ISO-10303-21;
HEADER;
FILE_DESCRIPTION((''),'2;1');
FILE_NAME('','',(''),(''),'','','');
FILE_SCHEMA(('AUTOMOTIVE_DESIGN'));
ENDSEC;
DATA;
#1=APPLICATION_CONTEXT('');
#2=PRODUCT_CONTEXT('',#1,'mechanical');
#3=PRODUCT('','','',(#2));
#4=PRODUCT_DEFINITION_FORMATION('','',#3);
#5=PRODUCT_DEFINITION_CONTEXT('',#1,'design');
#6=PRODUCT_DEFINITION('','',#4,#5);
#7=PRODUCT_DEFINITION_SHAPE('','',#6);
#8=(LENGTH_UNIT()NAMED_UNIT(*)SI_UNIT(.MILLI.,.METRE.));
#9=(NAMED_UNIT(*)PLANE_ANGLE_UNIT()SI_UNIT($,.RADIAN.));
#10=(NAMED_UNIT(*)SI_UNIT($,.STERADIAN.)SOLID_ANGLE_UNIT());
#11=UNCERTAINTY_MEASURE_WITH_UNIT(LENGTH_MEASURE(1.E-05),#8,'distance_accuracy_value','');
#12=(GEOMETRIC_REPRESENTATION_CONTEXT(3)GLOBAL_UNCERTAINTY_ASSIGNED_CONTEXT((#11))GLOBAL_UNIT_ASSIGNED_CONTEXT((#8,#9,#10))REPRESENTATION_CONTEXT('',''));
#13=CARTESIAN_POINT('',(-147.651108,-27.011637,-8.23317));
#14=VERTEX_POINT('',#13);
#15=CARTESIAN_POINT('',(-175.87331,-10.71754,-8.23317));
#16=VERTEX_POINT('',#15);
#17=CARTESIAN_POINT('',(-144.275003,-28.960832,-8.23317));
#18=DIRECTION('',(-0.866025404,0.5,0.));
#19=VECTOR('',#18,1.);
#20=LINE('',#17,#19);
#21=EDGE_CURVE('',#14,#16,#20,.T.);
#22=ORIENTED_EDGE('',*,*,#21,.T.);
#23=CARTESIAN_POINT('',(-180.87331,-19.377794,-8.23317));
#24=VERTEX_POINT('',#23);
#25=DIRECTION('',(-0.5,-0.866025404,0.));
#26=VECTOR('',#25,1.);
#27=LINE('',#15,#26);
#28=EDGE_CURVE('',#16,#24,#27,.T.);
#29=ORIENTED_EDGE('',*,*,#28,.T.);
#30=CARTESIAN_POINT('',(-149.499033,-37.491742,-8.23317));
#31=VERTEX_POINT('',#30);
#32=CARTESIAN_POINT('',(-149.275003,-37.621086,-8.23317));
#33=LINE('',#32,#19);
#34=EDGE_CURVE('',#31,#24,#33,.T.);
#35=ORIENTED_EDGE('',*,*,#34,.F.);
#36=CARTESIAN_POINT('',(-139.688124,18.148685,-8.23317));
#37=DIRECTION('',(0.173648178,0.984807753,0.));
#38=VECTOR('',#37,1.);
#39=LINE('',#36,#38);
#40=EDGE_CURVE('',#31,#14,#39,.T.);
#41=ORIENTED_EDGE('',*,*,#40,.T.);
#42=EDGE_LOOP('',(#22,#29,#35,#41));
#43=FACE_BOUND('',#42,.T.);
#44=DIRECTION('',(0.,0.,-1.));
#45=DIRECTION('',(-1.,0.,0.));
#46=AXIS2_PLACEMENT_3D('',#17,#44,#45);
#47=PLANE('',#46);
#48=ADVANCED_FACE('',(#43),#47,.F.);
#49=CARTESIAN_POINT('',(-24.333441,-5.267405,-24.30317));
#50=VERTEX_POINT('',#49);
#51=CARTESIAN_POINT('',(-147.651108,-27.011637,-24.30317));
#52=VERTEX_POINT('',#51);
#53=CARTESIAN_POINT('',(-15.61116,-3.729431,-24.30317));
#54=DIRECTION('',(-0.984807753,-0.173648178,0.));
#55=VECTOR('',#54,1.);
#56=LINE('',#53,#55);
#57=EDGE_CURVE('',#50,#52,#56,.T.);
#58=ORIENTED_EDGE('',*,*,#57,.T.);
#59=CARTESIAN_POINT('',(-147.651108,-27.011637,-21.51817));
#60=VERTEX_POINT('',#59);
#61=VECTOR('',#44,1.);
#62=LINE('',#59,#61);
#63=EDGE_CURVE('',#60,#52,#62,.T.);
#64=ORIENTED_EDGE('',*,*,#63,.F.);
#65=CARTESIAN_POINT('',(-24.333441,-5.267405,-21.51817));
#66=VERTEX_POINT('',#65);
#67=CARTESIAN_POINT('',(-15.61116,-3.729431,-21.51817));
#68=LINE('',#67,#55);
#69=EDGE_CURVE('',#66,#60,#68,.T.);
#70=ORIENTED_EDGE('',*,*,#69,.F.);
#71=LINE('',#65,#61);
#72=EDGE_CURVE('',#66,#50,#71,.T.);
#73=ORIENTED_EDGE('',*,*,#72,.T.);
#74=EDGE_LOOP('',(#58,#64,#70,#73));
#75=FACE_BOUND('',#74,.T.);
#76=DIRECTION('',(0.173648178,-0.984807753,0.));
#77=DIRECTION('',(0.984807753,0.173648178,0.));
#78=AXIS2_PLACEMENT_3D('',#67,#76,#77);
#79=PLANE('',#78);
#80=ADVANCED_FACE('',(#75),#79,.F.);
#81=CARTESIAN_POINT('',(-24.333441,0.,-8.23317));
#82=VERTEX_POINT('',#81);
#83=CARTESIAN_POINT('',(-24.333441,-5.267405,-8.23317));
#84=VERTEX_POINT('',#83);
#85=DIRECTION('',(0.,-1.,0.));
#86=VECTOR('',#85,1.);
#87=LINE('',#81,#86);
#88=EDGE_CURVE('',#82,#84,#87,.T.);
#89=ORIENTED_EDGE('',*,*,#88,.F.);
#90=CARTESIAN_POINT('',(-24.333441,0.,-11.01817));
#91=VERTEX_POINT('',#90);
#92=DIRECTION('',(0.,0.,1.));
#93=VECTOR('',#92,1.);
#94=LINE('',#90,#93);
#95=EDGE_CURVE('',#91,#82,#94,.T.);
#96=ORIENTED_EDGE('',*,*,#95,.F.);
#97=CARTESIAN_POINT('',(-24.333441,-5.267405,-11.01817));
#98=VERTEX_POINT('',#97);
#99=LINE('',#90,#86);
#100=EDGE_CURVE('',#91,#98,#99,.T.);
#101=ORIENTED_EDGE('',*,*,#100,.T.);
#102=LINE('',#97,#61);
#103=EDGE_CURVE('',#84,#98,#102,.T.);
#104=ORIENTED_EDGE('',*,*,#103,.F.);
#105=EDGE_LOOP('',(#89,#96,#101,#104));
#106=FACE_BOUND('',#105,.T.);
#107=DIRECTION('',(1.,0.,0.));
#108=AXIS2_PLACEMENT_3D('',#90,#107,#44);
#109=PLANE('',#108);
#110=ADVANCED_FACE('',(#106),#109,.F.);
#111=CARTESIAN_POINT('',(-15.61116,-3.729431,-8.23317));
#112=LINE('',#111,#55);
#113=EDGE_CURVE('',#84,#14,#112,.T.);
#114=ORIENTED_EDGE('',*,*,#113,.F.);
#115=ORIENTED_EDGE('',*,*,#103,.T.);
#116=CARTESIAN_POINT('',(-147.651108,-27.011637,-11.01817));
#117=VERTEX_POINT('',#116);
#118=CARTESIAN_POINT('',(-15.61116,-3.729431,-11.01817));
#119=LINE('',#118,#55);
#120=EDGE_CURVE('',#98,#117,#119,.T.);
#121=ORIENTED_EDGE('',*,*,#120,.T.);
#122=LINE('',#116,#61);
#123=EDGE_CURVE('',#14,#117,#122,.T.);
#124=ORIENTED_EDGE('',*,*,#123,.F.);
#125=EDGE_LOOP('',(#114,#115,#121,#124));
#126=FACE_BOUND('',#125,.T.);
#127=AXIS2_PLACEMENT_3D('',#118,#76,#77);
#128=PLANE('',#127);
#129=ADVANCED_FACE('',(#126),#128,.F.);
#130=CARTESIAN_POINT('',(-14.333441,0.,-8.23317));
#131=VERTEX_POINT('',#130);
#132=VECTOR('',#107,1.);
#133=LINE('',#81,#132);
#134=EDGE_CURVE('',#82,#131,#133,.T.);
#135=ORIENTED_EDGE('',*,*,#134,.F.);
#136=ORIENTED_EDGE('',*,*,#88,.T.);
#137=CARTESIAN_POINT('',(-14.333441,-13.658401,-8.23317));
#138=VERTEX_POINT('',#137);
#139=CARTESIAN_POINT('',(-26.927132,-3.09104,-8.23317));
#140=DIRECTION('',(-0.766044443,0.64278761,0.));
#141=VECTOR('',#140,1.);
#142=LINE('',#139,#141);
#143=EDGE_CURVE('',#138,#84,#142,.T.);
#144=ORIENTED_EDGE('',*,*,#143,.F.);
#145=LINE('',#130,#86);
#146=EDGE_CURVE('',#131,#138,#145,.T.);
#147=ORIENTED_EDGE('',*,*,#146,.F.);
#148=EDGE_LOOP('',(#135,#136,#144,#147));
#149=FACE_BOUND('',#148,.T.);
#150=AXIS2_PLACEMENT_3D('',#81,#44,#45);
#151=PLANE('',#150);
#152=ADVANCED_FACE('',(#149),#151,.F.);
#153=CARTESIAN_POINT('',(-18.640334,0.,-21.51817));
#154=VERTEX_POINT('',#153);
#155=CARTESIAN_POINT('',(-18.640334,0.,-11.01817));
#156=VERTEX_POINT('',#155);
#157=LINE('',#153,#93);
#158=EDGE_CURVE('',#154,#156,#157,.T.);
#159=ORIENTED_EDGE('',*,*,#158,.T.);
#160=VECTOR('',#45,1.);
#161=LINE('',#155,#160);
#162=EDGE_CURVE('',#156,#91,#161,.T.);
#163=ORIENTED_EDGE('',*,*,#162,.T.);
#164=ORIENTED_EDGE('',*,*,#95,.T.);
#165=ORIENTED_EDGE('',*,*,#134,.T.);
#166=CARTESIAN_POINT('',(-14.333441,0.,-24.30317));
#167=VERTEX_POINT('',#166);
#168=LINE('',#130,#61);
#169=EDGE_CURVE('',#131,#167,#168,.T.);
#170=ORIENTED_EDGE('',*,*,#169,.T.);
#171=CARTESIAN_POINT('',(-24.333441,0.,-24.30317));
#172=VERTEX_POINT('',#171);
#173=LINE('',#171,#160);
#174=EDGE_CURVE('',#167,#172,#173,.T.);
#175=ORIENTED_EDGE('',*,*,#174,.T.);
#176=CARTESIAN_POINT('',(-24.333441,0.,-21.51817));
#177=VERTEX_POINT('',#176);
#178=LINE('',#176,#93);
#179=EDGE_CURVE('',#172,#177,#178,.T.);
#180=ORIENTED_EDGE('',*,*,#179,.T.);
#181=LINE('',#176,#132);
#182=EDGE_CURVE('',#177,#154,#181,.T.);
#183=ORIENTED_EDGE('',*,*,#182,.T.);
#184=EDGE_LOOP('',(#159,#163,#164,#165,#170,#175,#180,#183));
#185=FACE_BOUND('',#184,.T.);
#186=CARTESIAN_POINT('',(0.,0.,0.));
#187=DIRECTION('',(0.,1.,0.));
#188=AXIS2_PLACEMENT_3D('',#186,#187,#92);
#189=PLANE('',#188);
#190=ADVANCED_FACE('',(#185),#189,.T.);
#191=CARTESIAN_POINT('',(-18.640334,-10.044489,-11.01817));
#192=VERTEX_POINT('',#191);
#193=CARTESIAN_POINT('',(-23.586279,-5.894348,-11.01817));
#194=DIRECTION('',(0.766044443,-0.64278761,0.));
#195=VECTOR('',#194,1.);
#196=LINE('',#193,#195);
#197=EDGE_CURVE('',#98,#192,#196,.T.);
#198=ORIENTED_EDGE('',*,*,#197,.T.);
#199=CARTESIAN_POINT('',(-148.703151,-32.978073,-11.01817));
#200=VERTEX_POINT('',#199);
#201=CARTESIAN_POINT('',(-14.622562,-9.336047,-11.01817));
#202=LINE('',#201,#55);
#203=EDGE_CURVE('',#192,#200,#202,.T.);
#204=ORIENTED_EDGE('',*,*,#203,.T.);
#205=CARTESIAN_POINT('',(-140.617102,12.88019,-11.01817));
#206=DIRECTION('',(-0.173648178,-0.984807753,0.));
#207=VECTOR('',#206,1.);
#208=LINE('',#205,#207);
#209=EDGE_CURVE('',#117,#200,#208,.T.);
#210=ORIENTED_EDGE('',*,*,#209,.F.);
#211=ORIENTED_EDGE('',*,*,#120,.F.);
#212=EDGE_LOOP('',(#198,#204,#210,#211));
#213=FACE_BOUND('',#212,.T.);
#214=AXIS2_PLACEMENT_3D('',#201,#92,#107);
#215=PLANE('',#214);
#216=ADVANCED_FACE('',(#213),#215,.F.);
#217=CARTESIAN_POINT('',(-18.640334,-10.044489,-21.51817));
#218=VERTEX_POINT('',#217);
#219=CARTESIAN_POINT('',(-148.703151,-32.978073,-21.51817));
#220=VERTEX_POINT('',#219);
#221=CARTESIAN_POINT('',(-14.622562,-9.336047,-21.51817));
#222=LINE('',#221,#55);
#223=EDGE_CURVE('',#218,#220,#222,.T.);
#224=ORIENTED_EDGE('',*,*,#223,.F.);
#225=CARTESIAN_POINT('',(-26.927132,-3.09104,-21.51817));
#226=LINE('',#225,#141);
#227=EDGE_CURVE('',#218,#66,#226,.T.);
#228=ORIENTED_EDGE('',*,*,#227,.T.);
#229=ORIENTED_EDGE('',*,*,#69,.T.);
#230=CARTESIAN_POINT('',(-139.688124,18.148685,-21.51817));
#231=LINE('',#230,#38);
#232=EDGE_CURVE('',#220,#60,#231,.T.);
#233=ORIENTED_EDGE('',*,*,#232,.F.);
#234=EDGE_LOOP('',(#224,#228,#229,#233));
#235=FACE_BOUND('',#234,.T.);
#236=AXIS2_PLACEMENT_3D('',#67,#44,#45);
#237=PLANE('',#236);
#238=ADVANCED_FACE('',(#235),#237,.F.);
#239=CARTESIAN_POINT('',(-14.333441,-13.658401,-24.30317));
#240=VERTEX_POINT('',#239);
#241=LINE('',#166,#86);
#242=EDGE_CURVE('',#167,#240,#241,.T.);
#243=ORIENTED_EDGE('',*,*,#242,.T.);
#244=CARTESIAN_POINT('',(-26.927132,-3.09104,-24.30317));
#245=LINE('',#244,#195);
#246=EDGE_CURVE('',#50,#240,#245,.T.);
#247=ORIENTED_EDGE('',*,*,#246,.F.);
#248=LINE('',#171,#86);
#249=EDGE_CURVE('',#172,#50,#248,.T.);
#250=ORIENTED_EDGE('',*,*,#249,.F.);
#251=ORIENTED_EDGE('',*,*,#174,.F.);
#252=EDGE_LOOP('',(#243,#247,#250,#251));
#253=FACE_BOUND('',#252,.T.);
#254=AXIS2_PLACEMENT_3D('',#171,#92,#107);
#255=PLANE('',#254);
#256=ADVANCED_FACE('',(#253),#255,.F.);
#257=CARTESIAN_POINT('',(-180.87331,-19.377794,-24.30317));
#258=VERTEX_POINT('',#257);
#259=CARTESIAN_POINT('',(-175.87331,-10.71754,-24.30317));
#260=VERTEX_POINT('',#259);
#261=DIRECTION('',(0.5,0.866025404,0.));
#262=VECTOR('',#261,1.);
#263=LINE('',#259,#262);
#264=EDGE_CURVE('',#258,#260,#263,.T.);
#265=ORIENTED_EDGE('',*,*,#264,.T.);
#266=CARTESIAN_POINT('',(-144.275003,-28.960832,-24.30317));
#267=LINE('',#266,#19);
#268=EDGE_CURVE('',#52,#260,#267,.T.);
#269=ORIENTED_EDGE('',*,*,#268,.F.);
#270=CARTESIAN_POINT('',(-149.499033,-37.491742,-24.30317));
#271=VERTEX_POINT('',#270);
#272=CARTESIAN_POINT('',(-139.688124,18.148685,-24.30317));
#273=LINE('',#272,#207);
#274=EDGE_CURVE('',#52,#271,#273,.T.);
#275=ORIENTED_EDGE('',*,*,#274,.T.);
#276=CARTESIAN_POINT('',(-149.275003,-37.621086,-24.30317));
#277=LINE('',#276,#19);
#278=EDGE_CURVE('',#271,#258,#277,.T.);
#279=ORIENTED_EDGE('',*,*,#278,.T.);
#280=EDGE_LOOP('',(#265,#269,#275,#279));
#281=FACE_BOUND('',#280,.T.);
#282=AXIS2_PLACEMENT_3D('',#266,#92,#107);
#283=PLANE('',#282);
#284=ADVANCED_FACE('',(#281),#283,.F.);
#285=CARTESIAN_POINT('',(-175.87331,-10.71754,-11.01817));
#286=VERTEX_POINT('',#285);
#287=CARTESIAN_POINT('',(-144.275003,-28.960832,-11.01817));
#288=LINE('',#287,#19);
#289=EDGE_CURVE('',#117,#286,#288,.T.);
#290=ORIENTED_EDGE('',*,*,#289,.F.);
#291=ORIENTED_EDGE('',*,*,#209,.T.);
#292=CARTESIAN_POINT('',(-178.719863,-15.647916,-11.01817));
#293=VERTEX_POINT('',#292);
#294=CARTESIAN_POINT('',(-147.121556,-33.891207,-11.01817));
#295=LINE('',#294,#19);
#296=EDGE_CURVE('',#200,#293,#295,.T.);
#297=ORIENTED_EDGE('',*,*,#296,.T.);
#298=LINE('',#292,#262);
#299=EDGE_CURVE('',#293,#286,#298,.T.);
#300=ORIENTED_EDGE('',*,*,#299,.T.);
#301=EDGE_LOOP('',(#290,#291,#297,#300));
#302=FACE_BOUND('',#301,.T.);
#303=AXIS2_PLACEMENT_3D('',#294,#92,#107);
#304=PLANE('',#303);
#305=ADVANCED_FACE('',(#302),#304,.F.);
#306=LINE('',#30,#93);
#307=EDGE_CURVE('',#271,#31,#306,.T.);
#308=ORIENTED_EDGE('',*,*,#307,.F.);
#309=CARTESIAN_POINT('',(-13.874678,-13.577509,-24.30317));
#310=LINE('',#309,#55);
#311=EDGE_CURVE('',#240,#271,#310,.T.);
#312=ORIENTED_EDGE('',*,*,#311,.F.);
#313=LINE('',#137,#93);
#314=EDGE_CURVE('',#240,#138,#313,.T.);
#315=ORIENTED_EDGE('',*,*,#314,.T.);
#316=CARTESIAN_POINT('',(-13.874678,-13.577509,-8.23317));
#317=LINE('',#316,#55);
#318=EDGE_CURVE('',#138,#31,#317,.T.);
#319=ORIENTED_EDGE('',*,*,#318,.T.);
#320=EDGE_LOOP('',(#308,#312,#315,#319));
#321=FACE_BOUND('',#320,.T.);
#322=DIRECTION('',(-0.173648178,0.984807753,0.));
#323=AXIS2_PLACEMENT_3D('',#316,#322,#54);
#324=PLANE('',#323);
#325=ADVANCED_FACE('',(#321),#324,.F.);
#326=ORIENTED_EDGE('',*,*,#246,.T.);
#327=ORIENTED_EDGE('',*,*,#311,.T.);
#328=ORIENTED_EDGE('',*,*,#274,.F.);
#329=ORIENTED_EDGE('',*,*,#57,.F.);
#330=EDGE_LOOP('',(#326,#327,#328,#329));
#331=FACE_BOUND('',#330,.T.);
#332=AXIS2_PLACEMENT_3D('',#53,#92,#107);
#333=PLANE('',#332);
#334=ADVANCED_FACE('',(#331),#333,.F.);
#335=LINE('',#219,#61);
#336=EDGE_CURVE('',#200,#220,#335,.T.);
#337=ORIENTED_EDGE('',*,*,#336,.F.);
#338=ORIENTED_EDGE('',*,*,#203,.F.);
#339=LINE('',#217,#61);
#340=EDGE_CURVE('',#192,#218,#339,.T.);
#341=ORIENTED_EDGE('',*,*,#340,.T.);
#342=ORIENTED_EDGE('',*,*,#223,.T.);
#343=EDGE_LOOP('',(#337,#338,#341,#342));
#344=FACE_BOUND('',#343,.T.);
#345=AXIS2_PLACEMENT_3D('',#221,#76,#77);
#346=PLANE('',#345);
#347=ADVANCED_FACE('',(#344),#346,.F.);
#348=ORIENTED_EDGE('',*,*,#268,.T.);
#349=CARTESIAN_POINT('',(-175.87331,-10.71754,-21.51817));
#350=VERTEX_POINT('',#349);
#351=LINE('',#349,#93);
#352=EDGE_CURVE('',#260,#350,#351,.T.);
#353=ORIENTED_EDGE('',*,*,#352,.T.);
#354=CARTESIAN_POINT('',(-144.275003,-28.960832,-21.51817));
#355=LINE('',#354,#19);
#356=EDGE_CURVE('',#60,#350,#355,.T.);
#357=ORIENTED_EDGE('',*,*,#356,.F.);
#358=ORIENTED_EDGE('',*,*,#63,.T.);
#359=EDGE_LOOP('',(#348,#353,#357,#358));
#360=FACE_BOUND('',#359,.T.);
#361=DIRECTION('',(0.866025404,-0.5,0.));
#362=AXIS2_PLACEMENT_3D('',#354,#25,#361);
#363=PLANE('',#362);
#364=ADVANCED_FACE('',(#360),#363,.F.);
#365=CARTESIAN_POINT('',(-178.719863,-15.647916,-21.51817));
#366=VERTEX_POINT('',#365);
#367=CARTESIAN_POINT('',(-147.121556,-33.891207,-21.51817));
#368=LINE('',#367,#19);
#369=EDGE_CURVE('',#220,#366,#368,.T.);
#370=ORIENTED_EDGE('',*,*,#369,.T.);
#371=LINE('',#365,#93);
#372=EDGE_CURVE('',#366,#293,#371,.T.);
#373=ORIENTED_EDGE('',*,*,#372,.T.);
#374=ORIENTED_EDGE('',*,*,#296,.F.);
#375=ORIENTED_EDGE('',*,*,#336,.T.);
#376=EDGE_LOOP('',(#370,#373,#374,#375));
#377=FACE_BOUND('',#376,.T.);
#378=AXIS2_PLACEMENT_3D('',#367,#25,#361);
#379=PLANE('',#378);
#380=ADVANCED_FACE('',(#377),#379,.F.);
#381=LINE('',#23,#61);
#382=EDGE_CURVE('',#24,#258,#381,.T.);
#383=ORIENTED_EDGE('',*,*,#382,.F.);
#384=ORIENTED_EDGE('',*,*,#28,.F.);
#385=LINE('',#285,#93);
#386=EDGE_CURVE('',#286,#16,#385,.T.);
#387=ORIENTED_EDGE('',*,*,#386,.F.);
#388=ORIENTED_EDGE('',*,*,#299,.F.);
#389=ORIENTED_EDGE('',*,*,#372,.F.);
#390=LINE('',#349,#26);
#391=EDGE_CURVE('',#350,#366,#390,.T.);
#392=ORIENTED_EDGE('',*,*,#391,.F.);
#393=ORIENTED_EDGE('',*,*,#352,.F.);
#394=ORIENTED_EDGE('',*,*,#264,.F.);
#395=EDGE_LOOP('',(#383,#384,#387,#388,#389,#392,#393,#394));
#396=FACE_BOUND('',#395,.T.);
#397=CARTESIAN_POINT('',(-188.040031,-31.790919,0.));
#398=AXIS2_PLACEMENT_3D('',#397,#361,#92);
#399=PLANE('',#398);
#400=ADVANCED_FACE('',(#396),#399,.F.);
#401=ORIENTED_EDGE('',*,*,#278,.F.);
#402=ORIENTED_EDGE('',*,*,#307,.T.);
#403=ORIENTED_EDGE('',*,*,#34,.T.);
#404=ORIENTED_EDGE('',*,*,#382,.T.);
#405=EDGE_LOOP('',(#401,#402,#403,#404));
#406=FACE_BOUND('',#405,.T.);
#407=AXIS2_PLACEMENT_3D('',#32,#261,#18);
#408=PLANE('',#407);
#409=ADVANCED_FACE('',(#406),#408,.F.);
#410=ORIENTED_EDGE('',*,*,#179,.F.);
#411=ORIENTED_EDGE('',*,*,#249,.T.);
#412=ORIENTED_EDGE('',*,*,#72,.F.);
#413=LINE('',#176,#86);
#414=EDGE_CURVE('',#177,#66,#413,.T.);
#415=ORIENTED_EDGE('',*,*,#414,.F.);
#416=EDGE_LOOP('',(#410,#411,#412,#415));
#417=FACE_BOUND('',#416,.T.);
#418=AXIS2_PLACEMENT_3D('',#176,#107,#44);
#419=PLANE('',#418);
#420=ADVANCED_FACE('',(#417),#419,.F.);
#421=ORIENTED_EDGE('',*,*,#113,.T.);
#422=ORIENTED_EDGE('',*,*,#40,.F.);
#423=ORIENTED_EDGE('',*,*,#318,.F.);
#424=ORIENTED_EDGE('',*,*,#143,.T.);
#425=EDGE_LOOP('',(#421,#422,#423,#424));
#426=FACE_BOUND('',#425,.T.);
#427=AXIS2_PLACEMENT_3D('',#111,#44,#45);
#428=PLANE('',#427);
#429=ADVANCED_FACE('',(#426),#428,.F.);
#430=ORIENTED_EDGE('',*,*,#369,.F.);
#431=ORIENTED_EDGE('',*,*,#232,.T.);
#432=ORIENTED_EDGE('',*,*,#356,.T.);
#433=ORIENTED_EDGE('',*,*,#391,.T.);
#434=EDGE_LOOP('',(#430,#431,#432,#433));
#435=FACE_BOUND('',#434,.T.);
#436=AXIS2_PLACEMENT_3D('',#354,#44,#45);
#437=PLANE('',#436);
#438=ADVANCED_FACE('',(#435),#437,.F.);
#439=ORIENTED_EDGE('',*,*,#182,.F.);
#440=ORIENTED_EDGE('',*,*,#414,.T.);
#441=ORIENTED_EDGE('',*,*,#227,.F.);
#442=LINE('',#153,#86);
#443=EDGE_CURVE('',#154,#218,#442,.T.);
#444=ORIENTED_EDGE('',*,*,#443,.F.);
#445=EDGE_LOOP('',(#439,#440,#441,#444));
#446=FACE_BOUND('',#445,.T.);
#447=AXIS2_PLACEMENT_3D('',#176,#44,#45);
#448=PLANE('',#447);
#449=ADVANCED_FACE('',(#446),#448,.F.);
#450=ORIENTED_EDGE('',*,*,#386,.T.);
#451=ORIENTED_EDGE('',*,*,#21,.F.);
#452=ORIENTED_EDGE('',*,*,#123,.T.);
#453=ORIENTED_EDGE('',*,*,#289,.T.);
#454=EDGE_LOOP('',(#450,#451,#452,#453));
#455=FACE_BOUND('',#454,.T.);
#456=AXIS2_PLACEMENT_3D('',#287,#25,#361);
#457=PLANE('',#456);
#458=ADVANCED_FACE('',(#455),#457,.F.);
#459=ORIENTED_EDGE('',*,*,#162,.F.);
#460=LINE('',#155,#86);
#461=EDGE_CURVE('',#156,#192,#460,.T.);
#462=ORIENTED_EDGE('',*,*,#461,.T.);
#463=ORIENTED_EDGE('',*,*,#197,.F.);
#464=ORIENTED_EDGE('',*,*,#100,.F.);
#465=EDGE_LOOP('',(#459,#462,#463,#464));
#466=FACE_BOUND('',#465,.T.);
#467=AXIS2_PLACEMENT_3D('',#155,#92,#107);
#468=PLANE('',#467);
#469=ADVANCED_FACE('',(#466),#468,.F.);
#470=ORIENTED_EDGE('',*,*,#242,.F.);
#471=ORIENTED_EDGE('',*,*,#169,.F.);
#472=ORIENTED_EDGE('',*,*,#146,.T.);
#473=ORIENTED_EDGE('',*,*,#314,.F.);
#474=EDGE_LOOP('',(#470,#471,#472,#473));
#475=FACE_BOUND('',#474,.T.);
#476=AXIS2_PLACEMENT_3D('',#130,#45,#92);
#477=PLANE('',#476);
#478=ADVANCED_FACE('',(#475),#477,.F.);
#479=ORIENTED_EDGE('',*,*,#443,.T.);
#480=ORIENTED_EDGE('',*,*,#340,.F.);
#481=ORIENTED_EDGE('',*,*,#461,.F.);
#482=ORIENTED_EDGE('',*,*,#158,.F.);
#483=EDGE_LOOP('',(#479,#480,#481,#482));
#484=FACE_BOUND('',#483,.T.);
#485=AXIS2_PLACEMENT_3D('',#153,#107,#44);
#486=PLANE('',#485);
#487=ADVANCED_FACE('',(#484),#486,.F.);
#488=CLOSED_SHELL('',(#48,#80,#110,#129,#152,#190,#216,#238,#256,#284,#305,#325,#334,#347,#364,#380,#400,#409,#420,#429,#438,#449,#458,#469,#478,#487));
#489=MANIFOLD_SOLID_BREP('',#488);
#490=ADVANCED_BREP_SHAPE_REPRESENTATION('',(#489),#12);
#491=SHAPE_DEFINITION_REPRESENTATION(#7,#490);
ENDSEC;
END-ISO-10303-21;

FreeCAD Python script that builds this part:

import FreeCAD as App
import Part
import Sketcher
Q = App.Units.Quantity


def add_polygon(sketch, points):
    """Adds a closed chain of lines whose ends are joined by coincident constraints."""
    first, n = sketch.GeometryCount, len(points)
    for a, b in zip(points, points[1:] + points[:1]):
        sketch.addGeometry(Part.LineSegment(App.Vector(*a, 0), App.Vector(*b, 0)), False)
    for i in range(n):
        sketch.addConstraint(Sketcher.Constraint("Coincident", first + i, 2, first + (i + 1) % n, 1))

doc = App.newDocument("Part")
params = doc.addObject("Spreadsheet::Sheet", "Params")
for row, (alias, value) in enumerate([
    ("sketch1_width", "10 mm"),
    ("sketch1_height", "10.5 mm"),
    ("sketch1_height2", "16.07 mm"),
    ("sketch2_height", "10 mm"),
], start=1):
    params.set(f"A{row}", alias)
    params.set(f"B{row}", "=" + value)
    params.setAlias(f"B{row}", alias)

body = doc.addObject("PartDesign::Body", "Body")

# Sketch on XZ plane
sketch1 = doc.addObject("Sketcher::SketchObject", "Sketch")
body.addObject(sketch1)
sketch1.AttachmentSupport = (doc.XZ_Plane, [""])
sketch1.MapMode = "FlatFace"
add_polygon(sketch1, [(-24.3, -24.3), (-24.3, -21.5), (-18.6, -21.5), (-18.6, -11), (-24.3, -11), (-24.3, -8.2), (-14.3, -8.2), (-14.3, -24.3)])  # lines 0-7
sketch1.addConstraint([
    Sketcher.Constraint("Vertical", 0),
    Sketcher.Constraint("Horizontal", 1),
    Sketcher.Constraint("Vertical", 2),
    Sketcher.Constraint("Horizontal", 3),
    Sketcher.Constraint("Vertical", 4),
    Sketcher.Constraint("Horizontal", 5),
    Sketcher.Constraint("Vertical", 6),
    Sketcher.Constraint("Horizontal", 7),
    Sketcher.Constraint("Vertical", 0, 2, 3, 2),
    Sketcher.Constraint("Equal", 0, 4),
    Sketcher.Constraint("DistanceX", 5, 1, 5, 2, 10.0),
    Sketcher.Constraint("DistanceY", 2, 1, 2, 2, 10.5),
    Sketcher.Constraint("DistanceY", 6, 2, 6, 1, 16.07),
    Sketcher.Constraint("DistanceX", 1, 1, 1, 2, 5.693107),
    Sketcher.Constraint("DistanceX", 0, 2, -1, 1, 24.333441),
    Sketcher.Constraint("DistanceY", 0, 2, -1, 1, 21.51817),
])
sketch1.setExpression("Constraints[18]", "Params.sketch1_width")
sketch1.setExpression("Constraints[19]", "Params.sketch1_height")
sketch1.setExpression("Constraints[20]", "Params.sketch1_height2")

# Sketch on XY plane
sketch2 = doc.addObject("Sketcher::SketchObject", "Sketch001")
body.addObject(sketch2)
sketch2.AttachmentSupport = (doc.XY_Plane, [""])
sketch2.MapMode = "FlatFace"
sketch2.AttachmentOffset = App.Placement(App.Vector(0, 0, -16.26817), App.Rotation())
sketch2.addGeometry([
    Part.LineSegment(App.Vector(-19, 0, 0), App.Vector(-19, -10, 0)),
    Part.LineSegment(App.Vector(-19, -10, 0), App.Vector(-149, -33, 0)),
    Part.LineSegment(App.Vector(-149, -33, 0), App.Vector(-179, -16, 0)),
], False)
sketch2.addConstraint([
    Sketcher.Constraint("Coincident", 0, 2, 1, 1),
    Sketcher.Constraint("Coincident", 1, 2, 2, 1),
    Sketcher.Constraint("Vertical", 0),
    Sketcher.Constraint("PointOnObject", 0, 1, -1),
    Sketcher.Constraint("DistanceY", 0, 2, 0, 1, 10.0),
    Sketcher.Constraint("Angle", 1, Q("-170 deg")),
    Sketcher.Constraint("Angle", 2, Q("150 deg")),
    Sketcher.Constraint("DistanceX", 1, 2, 0, 2, 130.0),
    Sketcher.Constraint("DistanceX", 2, 2, 1, 2, 30.0),
    Sketcher.Constraint("DistanceX", 0, 1, -1, 1, 18.693354),
])
sketch2.setExpression("Constraints[4]", "Params.sketch2_height")
doc.recompute()

additivepipe = doc.addObject("PartDesign::AdditivePipe", "AdditivePipe")
body.addObject(additivepipe)
additivepipe.Profile = sketch1
additivepipe.Spine = (sketch2, ["Edge1", "Edge2", "Edge3"])
additivepipe.Transition = "Right corner"

doc.recompute()
